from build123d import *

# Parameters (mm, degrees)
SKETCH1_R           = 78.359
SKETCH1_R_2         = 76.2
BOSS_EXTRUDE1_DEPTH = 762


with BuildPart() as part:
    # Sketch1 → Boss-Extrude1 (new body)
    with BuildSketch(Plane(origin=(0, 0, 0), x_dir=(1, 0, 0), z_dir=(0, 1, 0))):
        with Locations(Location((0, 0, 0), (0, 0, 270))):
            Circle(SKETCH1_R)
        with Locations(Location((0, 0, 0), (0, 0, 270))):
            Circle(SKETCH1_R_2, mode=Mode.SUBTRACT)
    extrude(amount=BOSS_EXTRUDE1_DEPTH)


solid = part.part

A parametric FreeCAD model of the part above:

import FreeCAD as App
import Part
import Sketcher

V = App.Vector
Q = App.Units.Quantity

doc = App.newDocument("Part")
params = doc.addObject("Spreadsheet::Sheet", "Params")
for row, (alias, value) in enumerate([
    ("sketch1_diameter", "6 in"),
    ("sketch1_diameter2", "6.17 in"),
    ("pad1_length", "30 in"),
], start=1):
    params.set(f"A{row}", alias)
    params.set(f"B{row}", "=" + value)
    params.setAlias(f"B{row}", alias)

body = doc.addObject("PartDesign::Body", "Body")

sketch1 = doc.addObject("Sketcher::SketchObject", "Sketch")
body.addObject(sketch1)
sketch1.AttachmentSupport = (doc.XZ_Plane, [""])
sketch1.MapMode = "FlatFace"
sketch1.addGeometry([
    Part.Circle(V(0, 0, 0), V(0, 0, 1), 78),
    Part.Circle(V(0, 0, 0), V(0, 0, 1), 76),
], False)
sketch1.addConstraint([
    Sketcher.Constraint("Coincident", 0, 3, -1, 1),
    Sketcher.Constraint("Coincident", 1, 3, -1, 1),
    Sketcher.Constraint("Diameter", 1, Q("6 in")),
    Sketcher.Constraint("Diameter", 0, Q("6.17 in")),
])
sketch1.setExpression("Constraints[2]", "Params.sketch1_diameter")
sketch1.setExpression("Constraints[3]", "Params.sketch1_diameter2")
pad1 = doc.addObject("PartDesign::Pad", "Pad")
body.addObject(pad1)
pad1.Profile = sketch1
pad1.setExpression("Length", "Params.pad1_length")
pad1.Reversed = True

doc.recompute()
